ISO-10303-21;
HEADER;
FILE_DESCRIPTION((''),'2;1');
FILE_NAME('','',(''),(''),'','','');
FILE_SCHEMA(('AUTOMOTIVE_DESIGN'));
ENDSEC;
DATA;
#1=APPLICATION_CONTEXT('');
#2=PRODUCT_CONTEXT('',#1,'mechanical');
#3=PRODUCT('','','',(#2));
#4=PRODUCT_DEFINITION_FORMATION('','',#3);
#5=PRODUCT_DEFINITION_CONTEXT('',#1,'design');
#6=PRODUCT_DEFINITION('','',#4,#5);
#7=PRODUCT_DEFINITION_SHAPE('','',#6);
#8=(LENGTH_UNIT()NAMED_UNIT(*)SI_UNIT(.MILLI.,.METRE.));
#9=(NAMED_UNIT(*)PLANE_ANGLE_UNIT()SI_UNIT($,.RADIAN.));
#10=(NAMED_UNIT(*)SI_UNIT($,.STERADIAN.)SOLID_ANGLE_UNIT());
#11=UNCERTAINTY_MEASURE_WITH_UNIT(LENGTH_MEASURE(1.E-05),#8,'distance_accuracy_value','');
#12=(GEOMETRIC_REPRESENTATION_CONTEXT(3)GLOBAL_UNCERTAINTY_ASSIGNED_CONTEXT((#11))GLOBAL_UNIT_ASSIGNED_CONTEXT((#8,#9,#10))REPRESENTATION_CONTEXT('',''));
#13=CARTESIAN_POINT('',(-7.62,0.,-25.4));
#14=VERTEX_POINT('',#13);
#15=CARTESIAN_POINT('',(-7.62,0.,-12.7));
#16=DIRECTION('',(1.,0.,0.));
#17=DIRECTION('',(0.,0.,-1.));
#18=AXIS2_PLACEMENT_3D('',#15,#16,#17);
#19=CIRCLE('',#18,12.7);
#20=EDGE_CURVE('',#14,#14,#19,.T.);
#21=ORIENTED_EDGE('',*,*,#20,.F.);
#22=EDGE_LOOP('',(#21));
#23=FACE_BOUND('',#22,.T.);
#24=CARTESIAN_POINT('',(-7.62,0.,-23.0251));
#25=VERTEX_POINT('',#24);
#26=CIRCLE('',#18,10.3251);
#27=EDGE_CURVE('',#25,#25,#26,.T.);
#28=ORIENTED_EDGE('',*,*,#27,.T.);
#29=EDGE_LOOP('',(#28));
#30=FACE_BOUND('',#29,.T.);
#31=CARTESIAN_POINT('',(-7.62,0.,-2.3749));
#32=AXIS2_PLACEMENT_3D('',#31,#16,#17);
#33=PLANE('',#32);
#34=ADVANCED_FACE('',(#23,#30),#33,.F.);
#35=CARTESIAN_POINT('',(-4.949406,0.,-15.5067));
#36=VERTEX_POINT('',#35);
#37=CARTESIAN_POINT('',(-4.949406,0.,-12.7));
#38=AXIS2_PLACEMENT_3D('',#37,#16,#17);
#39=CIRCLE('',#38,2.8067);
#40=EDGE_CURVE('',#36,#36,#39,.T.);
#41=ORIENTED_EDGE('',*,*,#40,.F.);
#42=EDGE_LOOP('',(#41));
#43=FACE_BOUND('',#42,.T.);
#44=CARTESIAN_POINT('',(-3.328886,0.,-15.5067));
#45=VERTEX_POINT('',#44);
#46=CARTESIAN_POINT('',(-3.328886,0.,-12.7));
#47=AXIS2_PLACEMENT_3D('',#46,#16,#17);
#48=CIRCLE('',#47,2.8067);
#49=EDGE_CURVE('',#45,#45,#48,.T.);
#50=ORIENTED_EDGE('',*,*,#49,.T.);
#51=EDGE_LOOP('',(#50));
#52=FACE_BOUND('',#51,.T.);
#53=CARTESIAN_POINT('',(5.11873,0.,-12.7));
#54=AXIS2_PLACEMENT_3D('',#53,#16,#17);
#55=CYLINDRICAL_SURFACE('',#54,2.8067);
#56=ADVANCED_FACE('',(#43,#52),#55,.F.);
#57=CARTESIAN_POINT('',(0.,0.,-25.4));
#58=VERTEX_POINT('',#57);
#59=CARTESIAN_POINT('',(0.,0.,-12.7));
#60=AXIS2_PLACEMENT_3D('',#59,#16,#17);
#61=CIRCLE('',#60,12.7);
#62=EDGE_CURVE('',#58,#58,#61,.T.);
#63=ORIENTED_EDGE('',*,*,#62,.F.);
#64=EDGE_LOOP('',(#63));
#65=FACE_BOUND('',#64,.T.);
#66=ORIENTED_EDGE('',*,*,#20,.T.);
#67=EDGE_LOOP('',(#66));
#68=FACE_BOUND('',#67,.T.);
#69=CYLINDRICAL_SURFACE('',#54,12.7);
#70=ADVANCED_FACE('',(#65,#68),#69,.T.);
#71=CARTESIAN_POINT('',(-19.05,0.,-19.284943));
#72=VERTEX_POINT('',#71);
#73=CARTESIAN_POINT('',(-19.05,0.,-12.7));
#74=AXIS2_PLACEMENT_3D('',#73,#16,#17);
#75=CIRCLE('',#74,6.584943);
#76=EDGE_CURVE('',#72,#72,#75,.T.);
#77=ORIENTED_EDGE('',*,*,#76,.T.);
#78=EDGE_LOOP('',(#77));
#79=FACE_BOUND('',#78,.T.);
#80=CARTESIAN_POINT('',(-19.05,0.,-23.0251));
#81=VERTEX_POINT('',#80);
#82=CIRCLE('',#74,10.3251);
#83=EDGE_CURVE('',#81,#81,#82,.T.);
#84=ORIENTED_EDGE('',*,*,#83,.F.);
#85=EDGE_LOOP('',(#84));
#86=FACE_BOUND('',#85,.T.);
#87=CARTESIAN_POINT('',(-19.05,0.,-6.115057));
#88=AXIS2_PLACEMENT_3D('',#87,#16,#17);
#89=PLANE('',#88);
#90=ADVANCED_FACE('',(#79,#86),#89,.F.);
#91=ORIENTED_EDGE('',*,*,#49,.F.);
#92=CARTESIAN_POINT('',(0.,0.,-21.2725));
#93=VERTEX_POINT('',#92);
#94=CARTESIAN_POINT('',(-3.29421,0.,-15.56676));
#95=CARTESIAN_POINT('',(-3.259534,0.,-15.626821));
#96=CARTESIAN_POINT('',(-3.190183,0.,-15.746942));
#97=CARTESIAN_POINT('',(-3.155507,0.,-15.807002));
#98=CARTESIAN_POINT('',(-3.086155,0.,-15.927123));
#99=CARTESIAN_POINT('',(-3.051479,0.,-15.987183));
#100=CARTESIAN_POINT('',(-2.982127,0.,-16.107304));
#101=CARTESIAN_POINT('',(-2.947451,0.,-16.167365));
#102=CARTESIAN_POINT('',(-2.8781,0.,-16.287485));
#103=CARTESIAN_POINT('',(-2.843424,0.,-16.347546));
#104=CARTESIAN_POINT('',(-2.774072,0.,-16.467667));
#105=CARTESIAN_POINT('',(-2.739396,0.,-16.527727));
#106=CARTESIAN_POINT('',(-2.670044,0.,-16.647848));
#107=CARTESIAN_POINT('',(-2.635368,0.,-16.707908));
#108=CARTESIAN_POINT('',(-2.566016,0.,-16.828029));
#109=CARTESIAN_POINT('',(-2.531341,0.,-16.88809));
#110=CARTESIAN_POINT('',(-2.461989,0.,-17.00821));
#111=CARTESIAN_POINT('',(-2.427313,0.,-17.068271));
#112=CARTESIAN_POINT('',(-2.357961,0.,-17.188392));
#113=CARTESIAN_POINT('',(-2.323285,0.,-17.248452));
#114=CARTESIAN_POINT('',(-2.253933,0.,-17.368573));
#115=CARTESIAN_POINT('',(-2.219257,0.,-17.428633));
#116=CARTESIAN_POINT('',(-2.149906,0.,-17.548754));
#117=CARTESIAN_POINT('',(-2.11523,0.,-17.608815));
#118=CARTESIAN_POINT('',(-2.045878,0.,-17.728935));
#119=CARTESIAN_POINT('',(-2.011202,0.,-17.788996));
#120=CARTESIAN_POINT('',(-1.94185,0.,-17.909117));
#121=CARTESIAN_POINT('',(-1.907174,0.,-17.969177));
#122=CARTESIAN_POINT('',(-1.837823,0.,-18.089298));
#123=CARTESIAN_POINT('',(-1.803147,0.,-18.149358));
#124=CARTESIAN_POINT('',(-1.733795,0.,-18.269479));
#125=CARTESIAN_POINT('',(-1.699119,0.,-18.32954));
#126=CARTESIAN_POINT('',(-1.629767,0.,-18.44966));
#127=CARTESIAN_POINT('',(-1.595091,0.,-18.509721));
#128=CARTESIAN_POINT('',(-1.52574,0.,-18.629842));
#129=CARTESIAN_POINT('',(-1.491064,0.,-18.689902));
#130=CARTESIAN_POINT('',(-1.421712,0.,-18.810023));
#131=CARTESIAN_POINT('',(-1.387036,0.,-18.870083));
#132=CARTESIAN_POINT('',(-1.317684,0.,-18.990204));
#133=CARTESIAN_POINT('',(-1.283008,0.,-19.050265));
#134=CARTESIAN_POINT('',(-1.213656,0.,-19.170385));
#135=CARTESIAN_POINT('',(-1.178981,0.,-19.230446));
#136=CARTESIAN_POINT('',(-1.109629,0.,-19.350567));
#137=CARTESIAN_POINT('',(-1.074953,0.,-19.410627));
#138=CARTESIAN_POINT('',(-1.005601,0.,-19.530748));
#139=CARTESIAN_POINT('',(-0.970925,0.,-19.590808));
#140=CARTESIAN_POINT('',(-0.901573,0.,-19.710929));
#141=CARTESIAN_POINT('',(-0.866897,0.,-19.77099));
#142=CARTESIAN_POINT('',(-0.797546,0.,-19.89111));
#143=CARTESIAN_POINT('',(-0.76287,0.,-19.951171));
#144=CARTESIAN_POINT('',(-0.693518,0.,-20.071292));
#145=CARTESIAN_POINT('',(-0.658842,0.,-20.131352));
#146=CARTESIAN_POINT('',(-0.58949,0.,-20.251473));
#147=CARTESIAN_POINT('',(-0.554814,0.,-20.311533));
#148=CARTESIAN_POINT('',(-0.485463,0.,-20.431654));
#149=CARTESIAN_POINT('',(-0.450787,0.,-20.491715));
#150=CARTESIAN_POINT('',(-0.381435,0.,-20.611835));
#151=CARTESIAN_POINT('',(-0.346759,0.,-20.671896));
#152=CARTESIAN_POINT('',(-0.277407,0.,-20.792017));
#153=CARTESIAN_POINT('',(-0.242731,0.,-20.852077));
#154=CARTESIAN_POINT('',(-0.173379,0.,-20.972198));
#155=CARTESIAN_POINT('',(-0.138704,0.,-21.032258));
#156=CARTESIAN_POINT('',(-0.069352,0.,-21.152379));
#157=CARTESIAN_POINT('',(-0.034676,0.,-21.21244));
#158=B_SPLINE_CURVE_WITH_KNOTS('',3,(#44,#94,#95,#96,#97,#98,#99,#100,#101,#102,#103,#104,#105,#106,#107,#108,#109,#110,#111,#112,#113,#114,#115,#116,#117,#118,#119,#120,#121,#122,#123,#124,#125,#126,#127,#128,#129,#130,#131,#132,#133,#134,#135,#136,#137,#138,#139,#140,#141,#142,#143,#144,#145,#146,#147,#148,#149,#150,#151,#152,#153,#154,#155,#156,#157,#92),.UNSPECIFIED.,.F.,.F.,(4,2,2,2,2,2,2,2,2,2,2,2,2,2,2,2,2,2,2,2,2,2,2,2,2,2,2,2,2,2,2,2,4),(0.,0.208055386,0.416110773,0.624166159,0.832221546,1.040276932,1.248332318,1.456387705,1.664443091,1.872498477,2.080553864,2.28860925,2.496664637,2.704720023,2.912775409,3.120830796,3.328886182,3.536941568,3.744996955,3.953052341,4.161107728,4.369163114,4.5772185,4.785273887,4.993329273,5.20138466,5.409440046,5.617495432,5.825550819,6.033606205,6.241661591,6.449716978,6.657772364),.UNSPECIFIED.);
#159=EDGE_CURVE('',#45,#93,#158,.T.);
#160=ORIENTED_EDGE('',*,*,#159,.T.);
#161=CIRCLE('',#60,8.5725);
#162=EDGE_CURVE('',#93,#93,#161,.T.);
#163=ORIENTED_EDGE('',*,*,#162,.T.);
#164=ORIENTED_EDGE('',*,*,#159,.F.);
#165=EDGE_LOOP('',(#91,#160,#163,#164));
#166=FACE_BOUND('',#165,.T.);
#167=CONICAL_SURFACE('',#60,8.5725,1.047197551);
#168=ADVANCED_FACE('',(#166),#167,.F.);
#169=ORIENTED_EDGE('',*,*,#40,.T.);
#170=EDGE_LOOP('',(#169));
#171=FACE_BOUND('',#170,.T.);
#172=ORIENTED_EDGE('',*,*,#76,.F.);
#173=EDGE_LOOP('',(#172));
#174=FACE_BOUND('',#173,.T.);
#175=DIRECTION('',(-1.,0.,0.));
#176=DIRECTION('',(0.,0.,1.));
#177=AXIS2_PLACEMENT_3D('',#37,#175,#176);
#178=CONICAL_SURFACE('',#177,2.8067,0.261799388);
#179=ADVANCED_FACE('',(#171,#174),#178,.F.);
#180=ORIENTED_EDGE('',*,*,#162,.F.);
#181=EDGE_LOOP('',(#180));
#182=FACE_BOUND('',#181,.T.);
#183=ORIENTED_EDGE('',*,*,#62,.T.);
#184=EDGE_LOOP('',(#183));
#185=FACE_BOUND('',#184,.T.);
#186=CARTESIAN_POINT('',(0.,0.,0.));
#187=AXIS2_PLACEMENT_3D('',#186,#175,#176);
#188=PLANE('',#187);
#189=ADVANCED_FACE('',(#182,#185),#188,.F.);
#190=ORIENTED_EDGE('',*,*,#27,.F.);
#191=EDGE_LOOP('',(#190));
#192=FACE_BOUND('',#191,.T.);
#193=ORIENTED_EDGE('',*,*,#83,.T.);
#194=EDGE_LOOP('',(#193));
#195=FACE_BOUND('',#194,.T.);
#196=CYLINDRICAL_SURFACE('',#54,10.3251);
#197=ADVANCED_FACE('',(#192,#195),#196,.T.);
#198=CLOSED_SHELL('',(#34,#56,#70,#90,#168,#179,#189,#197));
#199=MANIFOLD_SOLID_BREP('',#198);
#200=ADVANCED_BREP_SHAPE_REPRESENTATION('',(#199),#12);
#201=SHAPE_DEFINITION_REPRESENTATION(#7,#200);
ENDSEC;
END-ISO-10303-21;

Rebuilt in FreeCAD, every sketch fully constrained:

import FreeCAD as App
import Part
import Sketcher
Q = App.Units.Quantity

doc = App.newDocument("Part")
body = doc.addObject("PartDesign::Body", "Body")

# Sketch on XZ plane
sketch1 = body.newObject("Sketcher::SketchObject", "Sketch")
sketch1.AttachmentSupport = (doc.getObject("XZ_Plane"), [""])
sketch1.MapMode = "FlatFace"
sketch1.addGeometry([
    Part.LineSegment(App.Vector(0, 0, 0), App.Vector(0, -4.1275, 0)),  # 0
    Part.LineSegment(App.Vector(0, -4.1275, 0), App.Vector(-3.328886, -9.8933, 0)),  # 1
    Part.LineSegment(App.Vector(-3.328886, -9.8933, 0), App.Vector(-4.949406, -9.8933, 0)),  # 2
    Part.LineSegment(App.Vector(-4.949406, -9.8933, 0), App.Vector(-19.05, -6.115057, 0)),  # 3
    Part.LineSegment(App.Vector(-19.05, -6.115057, 0), App.Vector(-19.05, -2.3749, 0)),  # 4
    Part.LineSegment(App.Vector(-19.05, -2.3749, 0), App.Vector(-7.62, -2.3749, 0)),  # 5
    Part.LineSegment(App.Vector(-7.62, -2.3749, 0), App.Vector(-7.62, 0, 0)),  # 6
    Part.LineSegment(App.Vector(-7.62, 0, 0), App.Vector(0, 0, 0)),  # 7
], False)
sketch1.addGeometry(Part.LineSegment(App.Vector(0, -12.7, 0), App.Vector(-19.05, -12.7, 0)), True)  # axis
sketch1.addConstraint([
    Sketcher.Constraint("Coincident", 0, 2, 1, 1),
    Sketcher.Constraint("Coincident", 1, 2, 2, 1),
    Sketcher.Constraint("Coincident", 2, 2, 3, 1),
    Sketcher.Constraint("Coincident", 3, 2, 4, 1),
    Sketcher.Constraint("Coincident", 4, 2, 5, 1),
    Sketcher.Constraint("Coincident", 5, 2, 6, 1),
    Sketcher.Constraint("Coincident", 6, 2, 7, 1),
    Sketcher.Constraint("Coincident", 7, 2, 0, 1),
    Sketcher.Constraint("Vertical", 0),
    Sketcher.Constraint("Horizontal", 2),
    Sketcher.Constraint("Vertical", 4),
    Sketcher.Constraint("Horizontal", 5),
    Sketcher.Constraint("Vertical", 6),
    Sketcher.Constraint("Horizontal", 7),
    Sketcher.Constraint("Horizontal", 8),
    Sketcher.Constraint("Coincident", 7, 2, -1, 1),
    Sketcher.Constraint("PointOnObject", 8, 1, -2),
    Sketcher.Constraint("Vertical", 4, 2, 8, 2),
    Sketcher.Constraint("DistanceX", 7, 1, 7, 2, Q("0.3 in")),
    Sketcher.Constraint("Angle", 1, Q("-120 deg")),
    Sketcher.Constraint("Angle", 3, Q("165 deg")),
    Sketcher.Constraint("DistanceX", 5, 1, 5, 2, Q("0.45 in")),
    Sketcher.Constraint("DistanceY", 8, 1, -1, 1, Q("0.5 in")),
    Sketcher.Constraint("DistanceX", 2, 2, 2, 1, Q("0.0638 in")),
    Sketcher.Constraint("DistanceY", 0, 2, 0, 1, Q("0.1625 in")),
    Sketcher.Constraint("DistanceY", 6, 1, 6, 2, Q("0.0935 in")),
    Sketcher.Constraint("DistanceY", 1, 2, 0, 2, Q("0.227 in")),
])
revolution = body.newObject("PartDesign::Revolution", "Revolution")
revolution.Profile = sketch1
revolution.ReferenceAxis = (sketch1, ["Axis0"])
revolution.Angle = 360

doc.recompute()
